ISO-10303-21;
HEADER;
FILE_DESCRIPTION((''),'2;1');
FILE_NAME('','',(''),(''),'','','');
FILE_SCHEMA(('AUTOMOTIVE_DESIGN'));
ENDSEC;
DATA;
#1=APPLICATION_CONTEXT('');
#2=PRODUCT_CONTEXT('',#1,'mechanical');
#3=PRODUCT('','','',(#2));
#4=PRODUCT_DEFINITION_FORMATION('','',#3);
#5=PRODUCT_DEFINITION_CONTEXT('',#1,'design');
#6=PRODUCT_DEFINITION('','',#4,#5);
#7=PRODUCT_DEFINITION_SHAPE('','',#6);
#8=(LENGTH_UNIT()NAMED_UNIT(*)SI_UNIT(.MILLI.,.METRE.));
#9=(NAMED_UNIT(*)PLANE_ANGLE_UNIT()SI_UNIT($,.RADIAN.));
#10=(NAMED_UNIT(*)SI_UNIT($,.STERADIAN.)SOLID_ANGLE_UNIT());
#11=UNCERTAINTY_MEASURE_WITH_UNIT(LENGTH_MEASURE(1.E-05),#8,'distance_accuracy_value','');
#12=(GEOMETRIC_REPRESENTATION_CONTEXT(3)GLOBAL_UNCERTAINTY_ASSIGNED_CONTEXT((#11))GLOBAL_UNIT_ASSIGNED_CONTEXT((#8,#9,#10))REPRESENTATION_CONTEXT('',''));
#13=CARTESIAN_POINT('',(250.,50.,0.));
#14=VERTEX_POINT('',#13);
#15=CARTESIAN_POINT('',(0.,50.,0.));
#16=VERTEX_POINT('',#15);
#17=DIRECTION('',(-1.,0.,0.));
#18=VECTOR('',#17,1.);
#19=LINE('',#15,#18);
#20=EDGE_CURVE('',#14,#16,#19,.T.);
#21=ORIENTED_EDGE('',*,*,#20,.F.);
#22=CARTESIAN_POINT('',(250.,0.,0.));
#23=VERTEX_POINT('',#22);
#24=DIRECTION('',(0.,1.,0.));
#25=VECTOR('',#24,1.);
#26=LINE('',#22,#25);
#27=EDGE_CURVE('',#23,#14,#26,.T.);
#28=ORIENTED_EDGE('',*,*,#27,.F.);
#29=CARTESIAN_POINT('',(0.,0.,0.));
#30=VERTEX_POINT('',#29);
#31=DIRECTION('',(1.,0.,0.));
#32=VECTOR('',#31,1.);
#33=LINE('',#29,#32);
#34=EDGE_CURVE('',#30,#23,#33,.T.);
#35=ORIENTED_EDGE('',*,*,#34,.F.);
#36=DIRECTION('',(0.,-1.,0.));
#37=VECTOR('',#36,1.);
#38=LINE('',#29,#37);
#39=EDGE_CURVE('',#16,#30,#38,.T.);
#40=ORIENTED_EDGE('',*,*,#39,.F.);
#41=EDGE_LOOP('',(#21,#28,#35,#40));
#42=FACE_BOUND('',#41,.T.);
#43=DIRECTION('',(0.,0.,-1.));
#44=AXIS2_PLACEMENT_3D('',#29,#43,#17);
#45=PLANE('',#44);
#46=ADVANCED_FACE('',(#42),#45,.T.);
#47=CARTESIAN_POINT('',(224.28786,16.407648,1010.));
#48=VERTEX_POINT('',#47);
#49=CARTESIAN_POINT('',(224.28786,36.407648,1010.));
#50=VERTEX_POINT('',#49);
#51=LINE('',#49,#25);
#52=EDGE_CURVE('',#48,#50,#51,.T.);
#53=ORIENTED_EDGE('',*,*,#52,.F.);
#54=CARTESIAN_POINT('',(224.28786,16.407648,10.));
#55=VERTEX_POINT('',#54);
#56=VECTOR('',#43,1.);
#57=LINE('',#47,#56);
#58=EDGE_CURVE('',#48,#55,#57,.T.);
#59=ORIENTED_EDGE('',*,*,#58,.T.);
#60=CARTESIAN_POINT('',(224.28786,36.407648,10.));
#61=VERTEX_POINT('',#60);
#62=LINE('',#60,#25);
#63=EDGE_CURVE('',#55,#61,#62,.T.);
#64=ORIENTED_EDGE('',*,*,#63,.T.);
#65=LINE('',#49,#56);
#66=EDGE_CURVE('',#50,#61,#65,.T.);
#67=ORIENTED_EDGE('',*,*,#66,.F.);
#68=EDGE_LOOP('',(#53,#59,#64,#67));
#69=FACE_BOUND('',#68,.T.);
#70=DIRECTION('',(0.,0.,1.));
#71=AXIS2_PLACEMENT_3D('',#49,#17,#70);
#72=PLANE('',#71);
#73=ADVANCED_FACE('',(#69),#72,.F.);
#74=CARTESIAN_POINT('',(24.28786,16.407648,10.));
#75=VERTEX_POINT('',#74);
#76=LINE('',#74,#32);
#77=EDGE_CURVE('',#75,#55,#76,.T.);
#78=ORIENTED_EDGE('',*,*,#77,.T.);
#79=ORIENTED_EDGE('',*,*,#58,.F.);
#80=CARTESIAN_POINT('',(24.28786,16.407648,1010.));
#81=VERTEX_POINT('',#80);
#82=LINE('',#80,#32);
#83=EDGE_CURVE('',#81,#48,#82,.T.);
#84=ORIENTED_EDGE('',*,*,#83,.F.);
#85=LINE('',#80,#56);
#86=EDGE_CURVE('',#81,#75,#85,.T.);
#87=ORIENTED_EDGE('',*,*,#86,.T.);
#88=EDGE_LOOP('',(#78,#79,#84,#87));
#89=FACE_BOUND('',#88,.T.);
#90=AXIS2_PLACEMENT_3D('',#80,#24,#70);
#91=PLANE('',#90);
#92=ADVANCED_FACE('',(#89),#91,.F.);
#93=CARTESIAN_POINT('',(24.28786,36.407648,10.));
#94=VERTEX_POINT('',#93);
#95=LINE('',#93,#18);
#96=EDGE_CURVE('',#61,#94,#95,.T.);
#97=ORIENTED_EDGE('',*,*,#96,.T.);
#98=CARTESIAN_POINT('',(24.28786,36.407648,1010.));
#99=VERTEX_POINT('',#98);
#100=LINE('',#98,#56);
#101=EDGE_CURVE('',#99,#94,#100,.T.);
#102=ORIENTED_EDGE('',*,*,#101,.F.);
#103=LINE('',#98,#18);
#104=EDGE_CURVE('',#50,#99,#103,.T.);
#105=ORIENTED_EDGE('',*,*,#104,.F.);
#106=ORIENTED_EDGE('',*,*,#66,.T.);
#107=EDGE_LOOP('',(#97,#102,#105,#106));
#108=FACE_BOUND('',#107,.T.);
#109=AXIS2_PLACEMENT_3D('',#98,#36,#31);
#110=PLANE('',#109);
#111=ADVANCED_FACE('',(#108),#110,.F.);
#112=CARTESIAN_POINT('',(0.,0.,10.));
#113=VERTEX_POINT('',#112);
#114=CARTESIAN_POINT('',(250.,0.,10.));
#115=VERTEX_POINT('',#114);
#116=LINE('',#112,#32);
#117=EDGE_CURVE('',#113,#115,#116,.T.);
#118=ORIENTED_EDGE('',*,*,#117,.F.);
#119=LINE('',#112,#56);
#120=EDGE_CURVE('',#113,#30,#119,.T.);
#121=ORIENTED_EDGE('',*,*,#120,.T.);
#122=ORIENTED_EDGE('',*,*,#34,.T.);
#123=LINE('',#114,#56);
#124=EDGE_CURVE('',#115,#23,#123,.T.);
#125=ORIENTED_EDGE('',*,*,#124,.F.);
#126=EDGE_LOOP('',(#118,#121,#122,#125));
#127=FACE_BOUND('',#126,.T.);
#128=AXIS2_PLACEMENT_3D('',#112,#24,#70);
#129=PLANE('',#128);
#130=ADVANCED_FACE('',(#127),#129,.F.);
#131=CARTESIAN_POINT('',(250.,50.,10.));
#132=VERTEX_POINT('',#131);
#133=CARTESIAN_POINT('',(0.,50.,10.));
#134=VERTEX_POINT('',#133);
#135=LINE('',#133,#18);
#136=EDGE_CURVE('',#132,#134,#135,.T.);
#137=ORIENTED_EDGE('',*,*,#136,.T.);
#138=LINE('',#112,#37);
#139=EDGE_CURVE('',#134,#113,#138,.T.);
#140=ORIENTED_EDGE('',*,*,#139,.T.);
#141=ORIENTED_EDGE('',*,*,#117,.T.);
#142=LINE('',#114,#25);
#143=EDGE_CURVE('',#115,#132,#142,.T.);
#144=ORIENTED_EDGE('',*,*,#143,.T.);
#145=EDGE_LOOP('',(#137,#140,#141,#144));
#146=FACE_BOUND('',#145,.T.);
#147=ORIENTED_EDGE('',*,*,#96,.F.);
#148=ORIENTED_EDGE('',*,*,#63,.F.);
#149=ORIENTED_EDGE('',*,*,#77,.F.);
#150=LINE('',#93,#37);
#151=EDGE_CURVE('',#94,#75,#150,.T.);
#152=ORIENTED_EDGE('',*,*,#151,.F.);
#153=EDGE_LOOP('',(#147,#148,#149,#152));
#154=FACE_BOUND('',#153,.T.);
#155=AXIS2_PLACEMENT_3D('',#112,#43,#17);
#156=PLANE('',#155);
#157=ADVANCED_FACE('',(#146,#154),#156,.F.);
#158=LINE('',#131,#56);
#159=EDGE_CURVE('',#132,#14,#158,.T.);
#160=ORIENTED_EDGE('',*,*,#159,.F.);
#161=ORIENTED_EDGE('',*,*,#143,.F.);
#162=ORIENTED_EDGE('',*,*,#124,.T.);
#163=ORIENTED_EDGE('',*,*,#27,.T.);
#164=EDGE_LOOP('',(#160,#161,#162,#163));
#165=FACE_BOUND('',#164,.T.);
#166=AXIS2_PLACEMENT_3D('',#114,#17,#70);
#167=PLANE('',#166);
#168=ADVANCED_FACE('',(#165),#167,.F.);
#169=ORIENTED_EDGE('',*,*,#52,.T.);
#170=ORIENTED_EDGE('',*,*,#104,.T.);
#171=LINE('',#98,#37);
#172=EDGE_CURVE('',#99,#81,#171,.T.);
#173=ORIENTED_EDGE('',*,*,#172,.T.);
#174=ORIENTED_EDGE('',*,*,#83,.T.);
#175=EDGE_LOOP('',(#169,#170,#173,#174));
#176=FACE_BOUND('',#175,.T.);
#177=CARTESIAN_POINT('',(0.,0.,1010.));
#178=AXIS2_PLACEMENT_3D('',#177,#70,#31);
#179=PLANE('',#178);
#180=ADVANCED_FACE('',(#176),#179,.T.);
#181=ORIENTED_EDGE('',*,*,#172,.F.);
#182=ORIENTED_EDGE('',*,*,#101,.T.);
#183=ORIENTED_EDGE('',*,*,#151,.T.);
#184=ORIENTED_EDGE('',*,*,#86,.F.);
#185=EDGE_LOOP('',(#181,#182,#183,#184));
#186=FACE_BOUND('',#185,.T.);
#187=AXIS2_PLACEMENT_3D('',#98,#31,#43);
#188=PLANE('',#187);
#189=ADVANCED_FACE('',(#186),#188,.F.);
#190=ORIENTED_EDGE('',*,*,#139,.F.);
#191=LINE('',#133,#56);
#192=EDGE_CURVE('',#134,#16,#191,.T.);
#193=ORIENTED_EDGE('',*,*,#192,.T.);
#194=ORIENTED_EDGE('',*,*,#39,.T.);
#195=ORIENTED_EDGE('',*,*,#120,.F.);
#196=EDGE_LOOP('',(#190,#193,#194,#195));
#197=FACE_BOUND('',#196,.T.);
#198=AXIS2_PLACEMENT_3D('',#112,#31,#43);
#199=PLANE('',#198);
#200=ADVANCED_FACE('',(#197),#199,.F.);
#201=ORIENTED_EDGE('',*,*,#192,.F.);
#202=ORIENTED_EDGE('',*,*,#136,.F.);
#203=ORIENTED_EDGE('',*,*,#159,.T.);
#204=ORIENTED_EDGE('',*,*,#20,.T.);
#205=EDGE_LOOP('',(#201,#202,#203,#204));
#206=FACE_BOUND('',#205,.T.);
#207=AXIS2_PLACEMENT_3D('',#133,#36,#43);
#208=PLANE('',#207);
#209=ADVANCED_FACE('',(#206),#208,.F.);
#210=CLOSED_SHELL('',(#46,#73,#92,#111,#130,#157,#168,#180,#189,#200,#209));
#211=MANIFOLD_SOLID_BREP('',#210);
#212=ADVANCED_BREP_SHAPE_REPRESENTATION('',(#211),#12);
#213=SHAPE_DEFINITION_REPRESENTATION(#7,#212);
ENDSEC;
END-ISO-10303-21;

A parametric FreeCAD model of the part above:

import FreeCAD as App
import Part
import Sketcher


def add_polygon(sketch, points):
    """Adds a closed chain of lines whose ends are joined by coincident constraints."""
    first, n = sketch.GeometryCount, len(points)
    for a, b in zip(points, points[1:] + points[:1]):
        sketch.addGeometry(Part.LineSegment(App.Vector(*a, 0), App.Vector(*b, 0)), False)
    for i in range(n):
        sketch.addConstraint(Sketcher.Constraint("Coincident", first + i, 2, first + (i + 1) % n, 1))

doc = App.newDocument("Part")
body = doc.addObject("PartDesign::Body", "Body")

# Sketch on XY plane
sketch1 = body.newObject("Sketcher::SketchObject", "Sketch")
sketch1.AttachmentSupport = (doc.getObject("XY_Plane"), [""])
sketch1.MapMode = "FlatFace"
add_polygon(sketch1, [(0, 50), (0, 0), (250, 0), (250, 50)])  # lines 0-3
sketch1.addConstraint(Sketcher.Constraint("Vertical", 0))
sketch1.addConstraint(Sketcher.Constraint("Horizontal", 1))
sketch1.addConstraint(Sketcher.Constraint("Vertical", 2))
sketch1.addConstraint(Sketcher.Constraint("Horizontal", 3))
sketch1.addConstraint(Sketcher.Constraint("Coincident", 0, 2, -1, 1))
sketch1.addConstraint(Sketcher.Constraint("DistanceX", 1, 1, 1, 2, 250.0))
sketch1.addConstraint(Sketcher.Constraint("DistanceY", 0, 2, 0, 1, 50.0))
pad1 = body.newObject("PartDesign::Pad", "Pad")
pad1.Profile = sketch1
pad1.Length = 10

# Sketch on XY plane
sketch2 = body.newObject("Sketcher::SketchObject", "Sketch001")
sketch2.AttachmentSupport = (doc.getObject("XY_Plane"), [""])
sketch2.MapMode = "FlatFace"
sketch2.AttachmentOffset = App.Placement(App.Vector(0, 0, 10), App.Rotation())
add_polygon(sketch2, [(24.28786, 36.407648), (24.28786, 16.407648), (224.28786, 16.407648), (224.28786, 36.407648)])  # lines 0-3
sketch2.addConstraint(Sketcher.Constraint("Vertical", 0))
sketch2.addConstraint(Sketcher.Constraint("Horizontal", 1))
sketch2.addConstraint(Sketcher.Constraint("Vertical", 2))
sketch2.addConstraint(Sketcher.Constraint("Horizontal", 3))
sketch2.addConstraint(Sketcher.Constraint("DistanceX", 1, 1, 1, 2, 200.0))
sketch2.addConstraint(Sketcher.Constraint("DistanceY", 0, 2, 0, 1, 20.0))
sketch2.addConstraint(Sketcher.Constraint("DistanceX", -1, 1, 0, 2, 24.28786))
sketch2.addConstraint(Sketcher.Constraint("DistanceY", -1, 1, 0, 2, 16.407648))
pad2 = body.newObject("PartDesign::Pad", "Pad001")
pad2.Profile = sketch2
pad2.Length = 1000

doc.recompute()
